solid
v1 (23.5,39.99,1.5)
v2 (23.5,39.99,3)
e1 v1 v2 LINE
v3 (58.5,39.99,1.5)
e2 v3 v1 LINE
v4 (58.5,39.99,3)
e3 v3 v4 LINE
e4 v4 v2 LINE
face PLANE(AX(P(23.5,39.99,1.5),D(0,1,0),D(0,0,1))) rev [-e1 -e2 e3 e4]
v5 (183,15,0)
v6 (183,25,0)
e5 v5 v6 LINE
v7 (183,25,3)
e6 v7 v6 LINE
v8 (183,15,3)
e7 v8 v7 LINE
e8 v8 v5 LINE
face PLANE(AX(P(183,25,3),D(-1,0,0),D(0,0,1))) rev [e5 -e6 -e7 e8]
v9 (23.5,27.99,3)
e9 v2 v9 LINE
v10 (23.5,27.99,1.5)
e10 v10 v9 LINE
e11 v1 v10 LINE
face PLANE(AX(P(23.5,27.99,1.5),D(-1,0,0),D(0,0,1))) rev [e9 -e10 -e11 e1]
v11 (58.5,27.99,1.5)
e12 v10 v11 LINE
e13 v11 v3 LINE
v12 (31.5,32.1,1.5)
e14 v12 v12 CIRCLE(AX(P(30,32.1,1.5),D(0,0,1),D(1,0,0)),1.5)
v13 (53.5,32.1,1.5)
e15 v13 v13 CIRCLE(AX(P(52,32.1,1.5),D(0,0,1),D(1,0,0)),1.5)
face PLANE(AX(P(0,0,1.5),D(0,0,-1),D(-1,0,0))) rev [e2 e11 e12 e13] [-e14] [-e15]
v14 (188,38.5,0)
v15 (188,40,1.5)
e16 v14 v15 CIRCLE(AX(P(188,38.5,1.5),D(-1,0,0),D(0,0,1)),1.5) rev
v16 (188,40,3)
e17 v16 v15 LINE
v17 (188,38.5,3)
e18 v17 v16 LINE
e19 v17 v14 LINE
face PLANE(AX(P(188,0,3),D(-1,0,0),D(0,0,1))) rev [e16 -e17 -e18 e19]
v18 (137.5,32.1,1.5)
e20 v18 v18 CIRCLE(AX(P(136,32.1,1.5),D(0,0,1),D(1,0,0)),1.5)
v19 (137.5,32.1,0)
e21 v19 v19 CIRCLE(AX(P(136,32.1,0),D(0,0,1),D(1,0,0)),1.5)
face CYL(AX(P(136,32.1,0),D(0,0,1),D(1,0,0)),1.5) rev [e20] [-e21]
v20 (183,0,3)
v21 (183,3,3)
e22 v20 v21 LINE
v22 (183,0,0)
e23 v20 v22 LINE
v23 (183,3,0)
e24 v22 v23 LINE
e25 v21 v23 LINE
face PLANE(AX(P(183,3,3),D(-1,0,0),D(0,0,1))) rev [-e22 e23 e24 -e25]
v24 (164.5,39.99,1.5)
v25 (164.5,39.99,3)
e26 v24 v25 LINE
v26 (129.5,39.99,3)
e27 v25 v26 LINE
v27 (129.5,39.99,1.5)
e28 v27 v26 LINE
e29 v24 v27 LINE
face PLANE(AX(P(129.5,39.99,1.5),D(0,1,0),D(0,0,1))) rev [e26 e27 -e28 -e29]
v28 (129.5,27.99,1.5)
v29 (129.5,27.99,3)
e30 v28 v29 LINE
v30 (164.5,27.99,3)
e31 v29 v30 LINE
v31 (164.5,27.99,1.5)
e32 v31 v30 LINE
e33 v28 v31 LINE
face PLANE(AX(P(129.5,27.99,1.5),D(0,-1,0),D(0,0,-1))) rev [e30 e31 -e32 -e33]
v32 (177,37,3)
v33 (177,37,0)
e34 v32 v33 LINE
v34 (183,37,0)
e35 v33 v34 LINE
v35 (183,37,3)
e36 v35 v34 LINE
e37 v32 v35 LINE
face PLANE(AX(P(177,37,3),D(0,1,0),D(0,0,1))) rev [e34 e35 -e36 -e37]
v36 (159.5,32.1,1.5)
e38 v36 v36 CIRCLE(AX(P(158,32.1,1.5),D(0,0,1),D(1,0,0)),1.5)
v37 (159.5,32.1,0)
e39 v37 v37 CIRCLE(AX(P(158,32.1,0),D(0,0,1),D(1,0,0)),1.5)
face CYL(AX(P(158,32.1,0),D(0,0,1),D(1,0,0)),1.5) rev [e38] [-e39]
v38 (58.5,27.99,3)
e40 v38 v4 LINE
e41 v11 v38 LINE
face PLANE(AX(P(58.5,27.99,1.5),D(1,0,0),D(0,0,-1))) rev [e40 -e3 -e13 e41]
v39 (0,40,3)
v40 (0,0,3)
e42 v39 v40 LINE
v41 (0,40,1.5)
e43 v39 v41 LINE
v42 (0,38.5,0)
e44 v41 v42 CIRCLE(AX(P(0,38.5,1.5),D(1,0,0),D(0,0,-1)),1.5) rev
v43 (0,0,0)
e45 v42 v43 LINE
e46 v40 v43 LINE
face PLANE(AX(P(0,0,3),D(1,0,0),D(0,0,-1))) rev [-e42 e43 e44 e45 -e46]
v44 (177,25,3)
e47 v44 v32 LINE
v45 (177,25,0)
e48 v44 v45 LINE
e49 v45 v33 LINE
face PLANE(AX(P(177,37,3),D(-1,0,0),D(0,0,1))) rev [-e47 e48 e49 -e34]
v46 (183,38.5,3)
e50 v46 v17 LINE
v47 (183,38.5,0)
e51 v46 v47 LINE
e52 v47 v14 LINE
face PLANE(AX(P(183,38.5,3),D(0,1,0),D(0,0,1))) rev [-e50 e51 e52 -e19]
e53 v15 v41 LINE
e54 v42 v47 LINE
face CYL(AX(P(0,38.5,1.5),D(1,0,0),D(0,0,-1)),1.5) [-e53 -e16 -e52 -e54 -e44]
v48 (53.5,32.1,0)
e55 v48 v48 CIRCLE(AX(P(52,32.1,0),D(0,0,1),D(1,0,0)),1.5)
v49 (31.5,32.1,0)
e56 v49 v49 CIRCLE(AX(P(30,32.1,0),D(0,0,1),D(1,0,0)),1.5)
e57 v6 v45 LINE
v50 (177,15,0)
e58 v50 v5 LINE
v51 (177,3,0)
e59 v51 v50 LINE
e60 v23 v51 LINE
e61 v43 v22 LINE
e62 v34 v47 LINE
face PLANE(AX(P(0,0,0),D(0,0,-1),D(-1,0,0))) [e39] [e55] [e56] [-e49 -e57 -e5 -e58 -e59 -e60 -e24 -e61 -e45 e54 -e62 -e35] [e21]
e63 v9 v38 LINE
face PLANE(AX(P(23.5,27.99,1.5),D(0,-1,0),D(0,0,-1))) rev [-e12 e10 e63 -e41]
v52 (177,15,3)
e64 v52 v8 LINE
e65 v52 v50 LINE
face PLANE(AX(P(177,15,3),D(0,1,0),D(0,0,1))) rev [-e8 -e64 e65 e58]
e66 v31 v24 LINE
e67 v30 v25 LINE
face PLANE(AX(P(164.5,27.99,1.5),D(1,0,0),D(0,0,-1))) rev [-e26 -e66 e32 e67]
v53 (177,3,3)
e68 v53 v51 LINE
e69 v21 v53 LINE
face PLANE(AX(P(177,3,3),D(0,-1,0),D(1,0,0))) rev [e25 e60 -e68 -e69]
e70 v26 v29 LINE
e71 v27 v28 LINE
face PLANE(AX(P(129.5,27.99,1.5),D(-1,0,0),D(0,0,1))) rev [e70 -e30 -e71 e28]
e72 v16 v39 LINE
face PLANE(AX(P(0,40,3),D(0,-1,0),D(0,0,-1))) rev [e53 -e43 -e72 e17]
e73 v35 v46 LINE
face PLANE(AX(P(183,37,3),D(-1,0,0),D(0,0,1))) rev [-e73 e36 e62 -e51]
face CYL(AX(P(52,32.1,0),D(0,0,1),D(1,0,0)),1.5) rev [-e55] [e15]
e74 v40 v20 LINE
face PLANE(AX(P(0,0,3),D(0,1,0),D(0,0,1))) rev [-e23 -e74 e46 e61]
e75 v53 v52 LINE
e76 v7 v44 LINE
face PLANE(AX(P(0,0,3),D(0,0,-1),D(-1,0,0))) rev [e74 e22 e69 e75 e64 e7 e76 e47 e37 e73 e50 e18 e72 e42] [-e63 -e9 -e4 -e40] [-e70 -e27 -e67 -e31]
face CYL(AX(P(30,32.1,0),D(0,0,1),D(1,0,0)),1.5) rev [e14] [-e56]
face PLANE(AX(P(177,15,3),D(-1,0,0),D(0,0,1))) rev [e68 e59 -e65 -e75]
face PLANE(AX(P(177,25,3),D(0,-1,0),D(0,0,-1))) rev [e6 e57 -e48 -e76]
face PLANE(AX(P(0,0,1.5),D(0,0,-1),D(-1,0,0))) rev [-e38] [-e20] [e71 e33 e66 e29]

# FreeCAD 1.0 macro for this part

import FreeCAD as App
import Part
import Sketcher
from FreeCAD import Vector


def edges_at(feature, points):
    """Names of the edges that pass closest to the given points."""
    edges = feature.Shape.Edges
    near = lambda p: min(range(len(edges)), key=lambda i: edges[i].distToShape(Part.Vertex(*p))[0])
    return sorted({f"Edge{near(p) + 1}" for p in points})


def add_polygon(sketch, points):
    """Adds a closed chain of lines whose ends are joined by coincident constraints."""
    first, n = sketch.GeometryCount, len(points)
    for a, b in zip(points, points[1:] + points[:1]):
        sketch.addGeometry(Part.LineSegment(App.Vector(*a, 0), App.Vector(*b, 0)), False)
    for i in range(n):
        sketch.addConstraint(Sketcher.Constraint("Coincident", first + i, 2, first + (i + 1) % n, 1))

doc = App.newDocument("Part")
body = doc.addObject("PartDesign::Body", "Body")

sketch1 = doc.addObject("Sketcher::SketchObject", "Sketch")
body.addObject(sketch1)
sketch1.AttachmentSupport = (doc.XY_Plane, [""])
sketch1.MapMode = "FlatFace"
add_polygon(sketch1, [(0, 40), (0, 0), (188, 0), (188, 40)])
sketch1.addConstraint([
    Sketcher.Constraint("Vertical", 0),
    Sketcher.Constraint("Horizontal", 1),
    Sketcher.Constraint("Vertical", 2),
    Sketcher.Constraint("Horizontal", 3),
    Sketcher.Constraint("Coincident", 0, 2, -1, 1),
    Sketcher.Constraint("DistanceX", 1, 1, 1, 2, 188.0),
    Sketcher.Constraint("DistanceY", 0, 2, 0, 1, 40.0),
])
pad1 = doc.addObject("PartDesign::Pad", "Pad")
body.addObject(pad1)
pad1.Profile = sketch1
pad1.Length = 3
doc.recompute()

fillet = doc.addObject("PartDesign::Fillet", "Fillet")
body.addObject(fillet)
fillet.Base = (pad1, edges_at(pad1, [(94, 40, 0)]))
fillet.Radius = 1.5

sketch2 = doc.addObject("Sketcher::SketchObject", "Sketch001")
body.addObject(sketch2)
sketch2.AttachmentSupport = (doc.XY_Plane, [""])
sketch2.MapMode = "FlatFace"
add_polygon(sketch2, [(177, 37), (183, 37), (183, 38.5), (188, 38.5), (188, 0), (183, 0), (183, 3), (177, 3), (177, 15), (183, 15), (183, 25), (177, 25)])
sketch2.addConstraint([
    Sketcher.Constraint("Horizontal", 0),
    Sketcher.Constraint("Vertical", 1),
    Sketcher.Constraint("Horizontal", 2),
    Sketcher.Constraint("Vertical", 3),
    Sketcher.Constraint("Horizontal", 4),
    Sketcher.Constraint("Vertical", 5),
    Sketcher.Constraint("Horizontal", 6),
    Sketcher.Constraint("Vertical", 7),
    Sketcher.Constraint("Horizontal", 8),
    Sketcher.Constraint("Vertical", 9),
    Sketcher.Constraint("Horizontal", 10),
    Sketcher.Constraint("Vertical", 11),
    Sketcher.Constraint("PointOnObject", 3, 2, -1),
    Sketcher.Constraint("Vertical", 1, 2, 4, 2),
    Sketcher.Constraint("Vertical", 5, 2, 8, 2),
    Sketcher.Constraint("Vertical", 7, 2, 10, 2),
    Sketcher.Constraint("Equal", 7, 11),
    Sketcher.Constraint("DistanceX", 0, 1, 0, 2, 6.0),
    Sketcher.Constraint("DistanceX", 2, 1, 2, 2, 5.0),
    Sketcher.Constraint("DistanceY", 5, 1, 5, 2, 3.0),
    Sketcher.Constraint("DistanceY", 7, 1, 7, 2, 12.0),
    Sketcher.Constraint("DistanceY", 9, 1, 9, 2, 10.0),
    Sketcher.Constraint("DistanceY", 1, 1, 1, 2, 1.5),
    Sketcher.Constraint("DistanceX", -1, 1, 0, 2, 183.0),
])
pocket1 = doc.addObject("PartDesign::Pocket", "Pocket")
body.addObject(pocket1)
pocket1.Profile = sketch2
pocket1.Type = "ThroughAll"
pocket1.Reversed = True

sketch3 = doc.addObject("Sketcher::SketchObject", "Sketch002")
body.addObject(sketch3)
sketch3.AttachmentSupport = (doc.XY_Plane, [""])
sketch3.MapMode = "FlatFace"
sketch3.AttachmentOffset = App.Placement(Vector(0, 0, 3), App.Rotation())
add_polygon(sketch3, [(129.5, 39.99), (129.5, 27.99), (164.5, 27.99), (164.5, 39.99)])
add_polygon(sketch3, [(23.5, 39.99), (23.5, 27.99), (58.5, 27.99), (58.5, 39.99)])
sketch3.addConstraint([
    Sketcher.Constraint("Vertical", 0),
    Sketcher.Constraint("Horizontal", 1),
    Sketcher.Constraint("Vertical", 2),
    Sketcher.Constraint("Horizontal", 3),
    Sketcher.Constraint("Vertical", 4),
    Sketcher.Constraint("Horizontal", 5),
    Sketcher.Constraint("Vertical", 6),
    Sketcher.Constraint("Horizontal", 7),
    Sketcher.Constraint("Horizontal", 1, 2, 4, 2),
    Sketcher.Constraint("Horizontal", 3, 2, 6, 2),
    Sketcher.Constraint("Equal", 3, 5),
    Sketcher.Constraint("DistanceX", 1, 1, 1, 2, 35.0),
    Sketcher.Constraint("DistanceY", 0, 2, 0, 1, 12.0),
    Sketcher.Constraint("DistanceX", 4, 2, 0, 2, 106.0),
    Sketcher.Constraint("DistanceX", -1, 1, 0, 2, 129.5),
    Sketcher.Constraint("DistanceY", -1, 1, 0, 2, 27.99),
])
pocket2 = doc.addObject("PartDesign::Pocket", "Pocket001")
body.addObject(pocket2)
pocket2.Profile = sketch3
pocket2.Length = 1.5

sketch4 = doc.addObject("Sketcher::SketchObject", "Sketch003")
body.addObject(sketch4)
sketch4.AttachmentSupport = (doc.XY_Plane, [""])
sketch4.MapMode = "FlatFace"
sketch4.AttachmentOffset = App.Placement(Vector(0, 0, 1.5), App.Rotation())
sketch4.addGeometry([
    Part.Circle(Vector(30, 32.1, 0), Vector(0, 0, 1), 1.5),
    Part.Circle(Vector(52, 32.1, 0), Vector(0, 0, 1), 1.5),
], False)
sketch4.addConstraint([
    Sketcher.Constraint("Equal", 0, 1),
    Sketcher.Constraint("Horizontal", 0, 3, 1, 3),
    Sketcher.Constraint("Diameter", 0, 3.0),
    Sketcher.Constraint("DistanceX", -1, 1, 0, 3, 30.0),
    Sketcher.Constraint("DistanceX", -1, 1, 1, 3, 52.0),
    Sketcher.Constraint("DistanceY", -1, 1, 0, 3, 32.1),
])
pocket3 = doc.addObject("PartDesign::Pocket", "Pocket002")
body.addObject(pocket3)
pocket3.Profile = sketch4
pocket3.Length = 1.5

sketch5 = doc.addObject("Sketcher::SketchObject", "Sketch004")
body.addObject(sketch5)
sketch5.AttachmentSupport = (doc.XY_Plane, [""])
sketch5.MapMode = "FlatFace"
sketch5.AttachmentOffset = App.Placement(Vector(0, 0, 1.5), App.Rotation())
sketch5.addGeometry([
    Part.Circle(Vector(136, 32.1, 0), Vector(0, 0, 1), 1.5),
    Part.Circle(Vector(158, 32.1, 0), Vector(0, 0, 1), 1.5),
], False)
sketch5.addConstraint([
    Sketcher.Constraint("Equal", 0, 1),
    Sketcher.Constraint("Horizontal", 0, 3, 1, 3),
    Sketcher.Constraint("Diameter", 0, 3.0),
    Sketcher.Constraint("DistanceX", -1, 1, 0, 3, 136.0),
    Sketcher.Constraint("DistanceX", -1, 1, 1, 3, 158.0),
    Sketcher.Constraint("DistanceY", -1, 1, 0, 3, 32.1),
])
pocket4 = doc.addObject("PartDesign::Pocket", "Pocket003")
body.addObject(pocket4)
pocket4.Profile = sketch5
pocket4.Length = 1.5

doc.recompute()
